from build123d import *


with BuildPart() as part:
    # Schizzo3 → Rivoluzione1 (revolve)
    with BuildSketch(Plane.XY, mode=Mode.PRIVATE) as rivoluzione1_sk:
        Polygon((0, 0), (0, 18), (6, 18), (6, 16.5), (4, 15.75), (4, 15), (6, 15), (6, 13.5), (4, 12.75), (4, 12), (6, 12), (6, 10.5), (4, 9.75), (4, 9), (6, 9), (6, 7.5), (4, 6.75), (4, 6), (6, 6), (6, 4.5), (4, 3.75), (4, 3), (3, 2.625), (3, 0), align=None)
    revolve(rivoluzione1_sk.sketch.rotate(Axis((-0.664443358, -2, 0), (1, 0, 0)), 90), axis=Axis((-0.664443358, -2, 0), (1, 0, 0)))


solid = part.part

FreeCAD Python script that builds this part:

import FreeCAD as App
import Part
import Sketcher
Q = App.Units.Quantity

doc = App.newDocument("Part")
params = doc.addObject("Spreadsheet::Sheet", "Params")
for row, (alias, value) in enumerate([
    ("sketch1_width", "3 mm"),
    ("sketch1_width2", "2 mm"),
    ("sketch1_width3", "6 mm"),
    ("sketch1_height", "18 mm"),
    ("sketch1_height2", "1.5 mm"),
    ("revolution_angle", "360 deg"),
], start=1):
    params.set(f"A{row}", alias)
    params.set(f"B{row}", "=" + value)
    params.setAlias(f"B{row}", alias)

body = doc.addObject("PartDesign::Body", "Body")

sketch1 = doc.addObject("Sketcher::SketchObject", "Sketch")
body.addObject(sketch1)
sketch1.AttachmentSupport = (doc.XY_Plane, [""])
sketch1.MapMode = "FlatFace"
sketch1.addGeometry([
    Part.LineSegment(App.Vector(0, 18, 0), App.Vector(0, 0, 0)),
    Part.LineSegment(App.Vector(0, 0, 0), App.Vector(3, 0, 0)),
    Part.LineSegment(App.Vector(3, 0, 0), App.Vector(3, 2.6, 0)),
    Part.LineSegment(App.Vector(3, 2.6, 0), App.Vector(4, 3, 0)),
    Part.LineSegment(App.Vector(4, 3, 0), App.Vector(4, 3.8, 0)),
    Part.LineSegment(App.Vector(4, 3.8, 0), App.Vector(6, 4.5, 0)),
    Part.LineSegment(App.Vector(6, 4.5, 0), App.Vector(6, 6, 0)),
    Part.LineSegment(App.Vector(6, 6, 0), App.Vector(4, 6, 0)),
    Part.LineSegment(App.Vector(4, 6, 0), App.Vector(4, 6.8, 0)),
    Part.LineSegment(App.Vector(4, 6.8, 0), App.Vector(6, 7.5, 0)),
    Part.LineSegment(App.Vector(6, 7.5, 0), App.Vector(6, 9, 0)),
    Part.LineSegment(App.Vector(6, 9, 0), App.Vector(4, 9, 0)),
    Part.LineSegment(App.Vector(4, 9, 0), App.Vector(4, 9.8, 0)),
    Part.LineSegment(App.Vector(4, 9.8, 0), App.Vector(6, 10.5, 0)),
    Part.LineSegment(App.Vector(6, 10.5, 0), App.Vector(6, 12, 0)),
    Part.LineSegment(App.Vector(6, 12, 0), App.Vector(4, 12, 0)),
    Part.LineSegment(App.Vector(4, 12, 0), App.Vector(4, 12.8, 0)),
    Part.LineSegment(App.Vector(4, 12.8, 0), App.Vector(6, 13.5, 0)),
    Part.LineSegment(App.Vector(6, 13.5, 0), App.Vector(6, 15, 0)),
    Part.LineSegment(App.Vector(6, 15, 0), App.Vector(4, 15, 0)),
    Part.LineSegment(App.Vector(4, 15, 0), App.Vector(4, 15.8, 0)),
    Part.LineSegment(App.Vector(4, 15.8, 0), App.Vector(6, 16.5, 0)),
    Part.LineSegment(App.Vector(6, 16.5, 0), App.Vector(6, 18, 0)),
    Part.LineSegment(App.Vector(6, 18, 0), App.Vector(0, 18, 0)),
], False)
sketch1.addGeometry(Part.LineSegment(App.Vector(0, -2, 0), App.Vector(6, -2, 0)), True)
sketch1.addConstraint([
    Sketcher.Constraint("Coincident", 0, 2, 1, 1),
    Sketcher.Constraint("Coincident", 1, 2, 2, 1),
    Sketcher.Constraint("Coincident", 2, 2, 3, 1),
    Sketcher.Constraint("Coincident", 3, 2, 4, 1),
    Sketcher.Constraint("Coincident", 4, 2, 5, 1),
    Sketcher.Constraint("Coincident", 5, 2, 6, 1),
    Sketcher.Constraint("Coincident", 6, 2, 7, 1),
    Sketcher.Constraint("Coincident", 7, 2, 8, 1),
    Sketcher.Constraint("Coincident", 8, 2, 9, 1),
    Sketcher.Constraint("Coincident", 9, 2, 10, 1),
    Sketcher.Constraint("Coincident", 10, 2, 11, 1),
    Sketcher.Constraint("Coincident", 11, 2, 12, 1),
    Sketcher.Constraint("Coincident", 12, 2, 13, 1),
    Sketcher.Constraint("Coincident", 13, 2, 14, 1),
    Sketcher.Constraint("Coincident", 14, 2, 15, 1),
    Sketcher.Constraint("Coincident", 15, 2, 16, 1),
    Sketcher.Constraint("Coincident", 16, 2, 17, 1),
    Sketcher.Constraint("Coincident", 17, 2, 18, 1),
    Sketcher.Constraint("Coincident", 18, 2, 19, 1),
    Sketcher.Constraint("Coincident", 19, 2, 20, 1),
    Sketcher.Constraint("Coincident", 20, 2, 21, 1),
    Sketcher.Constraint("Coincident", 21, 2, 22, 1),
    Sketcher.Constraint("Coincident", 22, 2, 23, 1),
    Sketcher.Constraint("Coincident", 23, 2, 0, 1),
    Sketcher.Constraint("Vertical", 0),
    Sketcher.Constraint("Horizontal", 1),
    Sketcher.Constraint("Vertical", 2),
    Sketcher.Constraint("Vertical", 4),
    Sketcher.Constraint("Vertical", 6),
    Sketcher.Constraint("Horizontal", 7),
    Sketcher.Constraint("Vertical", 8),
    Sketcher.Constraint("Vertical", 10),
    Sketcher.Constraint("Horizontal", 11),
    Sketcher.Constraint("Vertical", 12),
    Sketcher.Constraint("Vertical", 14),
    Sketcher.Constraint("Horizontal", 15),
    Sketcher.Constraint("Vertical", 16),
    Sketcher.Constraint("Vertical", 18),
    Sketcher.Constraint("Horizontal", 19),
    Sketcher.Constraint("Vertical", 20),
    Sketcher.Constraint("Vertical", 22),
    Sketcher.Constraint("Horizontal", 23),
    Sketcher.Constraint("Horizontal", 24),
    Sketcher.Constraint("Coincident", 0, 2, -1, 1),
    Sketcher.Constraint("PointOnObject", 24, 1, -2),
    Sketcher.Constraint("Parallel", 3, 5),
    Sketcher.Constraint("Parallel", 5, 9),
    Sketcher.Constraint("Parallel", 9, 13),
    Sketcher.Constraint("Parallel", 13, 17),
    Sketcher.Constraint("Parallel", 17, 21),
    Sketcher.Constraint("Vertical", 4, 2, 7, 2),
    Sketcher.Constraint("Vertical", 6, 2, 9, 2),
    Sketcher.Constraint("Vertical", 8, 2, 11, 2),
    Sketcher.Constraint("Vertical", 10, 2, 13, 2),
    Sketcher.Constraint("Vertical", 12, 2, 15, 2),
    Sketcher.Constraint("Vertical", 14, 2, 17, 2),
    Sketcher.Constraint("Vertical", 16, 2, 19, 2),
    Sketcher.Constraint("Vertical", 18, 2, 21, 2),
    Sketcher.Constraint("Vertical", 22, 2, 24, 2),
    Sketcher.Constraint("Equal", 4, 8),
    Sketcher.Constraint("Equal", 6, 10),
    Sketcher.Constraint("Equal", 8, 12),
    Sketcher.Constraint("Equal", 10, 14),
    Sketcher.Constraint("Equal", 12, 16),
    Sketcher.Constraint("Equal", 14, 18),
    Sketcher.Constraint("Equal", 16, 20),
    Sketcher.Constraint("Equal", 18, 22),
    Sketcher.Constraint("DistanceX", 1, 1, 1, 2, Q("3 mm")),
    Sketcher.Constraint("DistanceX", 7, 2, 7, 1, Q("2 mm")),
    Sketcher.Constraint("DistanceX", 23, 2, 23, 1, Q("6 mm")),
    Sketcher.Constraint("DistanceY", 0, 2, 0, 1, Q("18 mm")),
    Sketcher.Constraint("DistanceY", 6, 1, 6, 2, Q("1.5 mm")),
    Sketcher.Constraint("DistanceY", -1, 1, 3, 2, Q("3 mm")),
    Sketcher.Constraint("DistanceY", 24, 1, -1, 1, Q("2 mm")),
    Sketcher.Constraint("DistanceY", 4, 1, 4, 2, Q("0.75 mm")),
])
sketch1.setExpression("Constraints[67]", "Params.sketch1_width")
sketch1.setExpression("Constraints[68]", "Params.sketch1_width2")
sketch1.setExpression("Constraints[69]", "Params.sketch1_width3")
sketch1.setExpression("Constraints[70]", "Params.sketch1_height")
sketch1.setExpression("Constraints[71]", "Params.sketch1_height2")
revolution = doc.addObject("PartDesign::Revolution", "Revolution")
body.addObject(revolution)
revolution.Profile = sketch1
revolution.ReferenceAxis = (sketch1, ["Axis0"])
revolution.setExpression("Angle", "Params.revolution_angle")

doc.recompute()
